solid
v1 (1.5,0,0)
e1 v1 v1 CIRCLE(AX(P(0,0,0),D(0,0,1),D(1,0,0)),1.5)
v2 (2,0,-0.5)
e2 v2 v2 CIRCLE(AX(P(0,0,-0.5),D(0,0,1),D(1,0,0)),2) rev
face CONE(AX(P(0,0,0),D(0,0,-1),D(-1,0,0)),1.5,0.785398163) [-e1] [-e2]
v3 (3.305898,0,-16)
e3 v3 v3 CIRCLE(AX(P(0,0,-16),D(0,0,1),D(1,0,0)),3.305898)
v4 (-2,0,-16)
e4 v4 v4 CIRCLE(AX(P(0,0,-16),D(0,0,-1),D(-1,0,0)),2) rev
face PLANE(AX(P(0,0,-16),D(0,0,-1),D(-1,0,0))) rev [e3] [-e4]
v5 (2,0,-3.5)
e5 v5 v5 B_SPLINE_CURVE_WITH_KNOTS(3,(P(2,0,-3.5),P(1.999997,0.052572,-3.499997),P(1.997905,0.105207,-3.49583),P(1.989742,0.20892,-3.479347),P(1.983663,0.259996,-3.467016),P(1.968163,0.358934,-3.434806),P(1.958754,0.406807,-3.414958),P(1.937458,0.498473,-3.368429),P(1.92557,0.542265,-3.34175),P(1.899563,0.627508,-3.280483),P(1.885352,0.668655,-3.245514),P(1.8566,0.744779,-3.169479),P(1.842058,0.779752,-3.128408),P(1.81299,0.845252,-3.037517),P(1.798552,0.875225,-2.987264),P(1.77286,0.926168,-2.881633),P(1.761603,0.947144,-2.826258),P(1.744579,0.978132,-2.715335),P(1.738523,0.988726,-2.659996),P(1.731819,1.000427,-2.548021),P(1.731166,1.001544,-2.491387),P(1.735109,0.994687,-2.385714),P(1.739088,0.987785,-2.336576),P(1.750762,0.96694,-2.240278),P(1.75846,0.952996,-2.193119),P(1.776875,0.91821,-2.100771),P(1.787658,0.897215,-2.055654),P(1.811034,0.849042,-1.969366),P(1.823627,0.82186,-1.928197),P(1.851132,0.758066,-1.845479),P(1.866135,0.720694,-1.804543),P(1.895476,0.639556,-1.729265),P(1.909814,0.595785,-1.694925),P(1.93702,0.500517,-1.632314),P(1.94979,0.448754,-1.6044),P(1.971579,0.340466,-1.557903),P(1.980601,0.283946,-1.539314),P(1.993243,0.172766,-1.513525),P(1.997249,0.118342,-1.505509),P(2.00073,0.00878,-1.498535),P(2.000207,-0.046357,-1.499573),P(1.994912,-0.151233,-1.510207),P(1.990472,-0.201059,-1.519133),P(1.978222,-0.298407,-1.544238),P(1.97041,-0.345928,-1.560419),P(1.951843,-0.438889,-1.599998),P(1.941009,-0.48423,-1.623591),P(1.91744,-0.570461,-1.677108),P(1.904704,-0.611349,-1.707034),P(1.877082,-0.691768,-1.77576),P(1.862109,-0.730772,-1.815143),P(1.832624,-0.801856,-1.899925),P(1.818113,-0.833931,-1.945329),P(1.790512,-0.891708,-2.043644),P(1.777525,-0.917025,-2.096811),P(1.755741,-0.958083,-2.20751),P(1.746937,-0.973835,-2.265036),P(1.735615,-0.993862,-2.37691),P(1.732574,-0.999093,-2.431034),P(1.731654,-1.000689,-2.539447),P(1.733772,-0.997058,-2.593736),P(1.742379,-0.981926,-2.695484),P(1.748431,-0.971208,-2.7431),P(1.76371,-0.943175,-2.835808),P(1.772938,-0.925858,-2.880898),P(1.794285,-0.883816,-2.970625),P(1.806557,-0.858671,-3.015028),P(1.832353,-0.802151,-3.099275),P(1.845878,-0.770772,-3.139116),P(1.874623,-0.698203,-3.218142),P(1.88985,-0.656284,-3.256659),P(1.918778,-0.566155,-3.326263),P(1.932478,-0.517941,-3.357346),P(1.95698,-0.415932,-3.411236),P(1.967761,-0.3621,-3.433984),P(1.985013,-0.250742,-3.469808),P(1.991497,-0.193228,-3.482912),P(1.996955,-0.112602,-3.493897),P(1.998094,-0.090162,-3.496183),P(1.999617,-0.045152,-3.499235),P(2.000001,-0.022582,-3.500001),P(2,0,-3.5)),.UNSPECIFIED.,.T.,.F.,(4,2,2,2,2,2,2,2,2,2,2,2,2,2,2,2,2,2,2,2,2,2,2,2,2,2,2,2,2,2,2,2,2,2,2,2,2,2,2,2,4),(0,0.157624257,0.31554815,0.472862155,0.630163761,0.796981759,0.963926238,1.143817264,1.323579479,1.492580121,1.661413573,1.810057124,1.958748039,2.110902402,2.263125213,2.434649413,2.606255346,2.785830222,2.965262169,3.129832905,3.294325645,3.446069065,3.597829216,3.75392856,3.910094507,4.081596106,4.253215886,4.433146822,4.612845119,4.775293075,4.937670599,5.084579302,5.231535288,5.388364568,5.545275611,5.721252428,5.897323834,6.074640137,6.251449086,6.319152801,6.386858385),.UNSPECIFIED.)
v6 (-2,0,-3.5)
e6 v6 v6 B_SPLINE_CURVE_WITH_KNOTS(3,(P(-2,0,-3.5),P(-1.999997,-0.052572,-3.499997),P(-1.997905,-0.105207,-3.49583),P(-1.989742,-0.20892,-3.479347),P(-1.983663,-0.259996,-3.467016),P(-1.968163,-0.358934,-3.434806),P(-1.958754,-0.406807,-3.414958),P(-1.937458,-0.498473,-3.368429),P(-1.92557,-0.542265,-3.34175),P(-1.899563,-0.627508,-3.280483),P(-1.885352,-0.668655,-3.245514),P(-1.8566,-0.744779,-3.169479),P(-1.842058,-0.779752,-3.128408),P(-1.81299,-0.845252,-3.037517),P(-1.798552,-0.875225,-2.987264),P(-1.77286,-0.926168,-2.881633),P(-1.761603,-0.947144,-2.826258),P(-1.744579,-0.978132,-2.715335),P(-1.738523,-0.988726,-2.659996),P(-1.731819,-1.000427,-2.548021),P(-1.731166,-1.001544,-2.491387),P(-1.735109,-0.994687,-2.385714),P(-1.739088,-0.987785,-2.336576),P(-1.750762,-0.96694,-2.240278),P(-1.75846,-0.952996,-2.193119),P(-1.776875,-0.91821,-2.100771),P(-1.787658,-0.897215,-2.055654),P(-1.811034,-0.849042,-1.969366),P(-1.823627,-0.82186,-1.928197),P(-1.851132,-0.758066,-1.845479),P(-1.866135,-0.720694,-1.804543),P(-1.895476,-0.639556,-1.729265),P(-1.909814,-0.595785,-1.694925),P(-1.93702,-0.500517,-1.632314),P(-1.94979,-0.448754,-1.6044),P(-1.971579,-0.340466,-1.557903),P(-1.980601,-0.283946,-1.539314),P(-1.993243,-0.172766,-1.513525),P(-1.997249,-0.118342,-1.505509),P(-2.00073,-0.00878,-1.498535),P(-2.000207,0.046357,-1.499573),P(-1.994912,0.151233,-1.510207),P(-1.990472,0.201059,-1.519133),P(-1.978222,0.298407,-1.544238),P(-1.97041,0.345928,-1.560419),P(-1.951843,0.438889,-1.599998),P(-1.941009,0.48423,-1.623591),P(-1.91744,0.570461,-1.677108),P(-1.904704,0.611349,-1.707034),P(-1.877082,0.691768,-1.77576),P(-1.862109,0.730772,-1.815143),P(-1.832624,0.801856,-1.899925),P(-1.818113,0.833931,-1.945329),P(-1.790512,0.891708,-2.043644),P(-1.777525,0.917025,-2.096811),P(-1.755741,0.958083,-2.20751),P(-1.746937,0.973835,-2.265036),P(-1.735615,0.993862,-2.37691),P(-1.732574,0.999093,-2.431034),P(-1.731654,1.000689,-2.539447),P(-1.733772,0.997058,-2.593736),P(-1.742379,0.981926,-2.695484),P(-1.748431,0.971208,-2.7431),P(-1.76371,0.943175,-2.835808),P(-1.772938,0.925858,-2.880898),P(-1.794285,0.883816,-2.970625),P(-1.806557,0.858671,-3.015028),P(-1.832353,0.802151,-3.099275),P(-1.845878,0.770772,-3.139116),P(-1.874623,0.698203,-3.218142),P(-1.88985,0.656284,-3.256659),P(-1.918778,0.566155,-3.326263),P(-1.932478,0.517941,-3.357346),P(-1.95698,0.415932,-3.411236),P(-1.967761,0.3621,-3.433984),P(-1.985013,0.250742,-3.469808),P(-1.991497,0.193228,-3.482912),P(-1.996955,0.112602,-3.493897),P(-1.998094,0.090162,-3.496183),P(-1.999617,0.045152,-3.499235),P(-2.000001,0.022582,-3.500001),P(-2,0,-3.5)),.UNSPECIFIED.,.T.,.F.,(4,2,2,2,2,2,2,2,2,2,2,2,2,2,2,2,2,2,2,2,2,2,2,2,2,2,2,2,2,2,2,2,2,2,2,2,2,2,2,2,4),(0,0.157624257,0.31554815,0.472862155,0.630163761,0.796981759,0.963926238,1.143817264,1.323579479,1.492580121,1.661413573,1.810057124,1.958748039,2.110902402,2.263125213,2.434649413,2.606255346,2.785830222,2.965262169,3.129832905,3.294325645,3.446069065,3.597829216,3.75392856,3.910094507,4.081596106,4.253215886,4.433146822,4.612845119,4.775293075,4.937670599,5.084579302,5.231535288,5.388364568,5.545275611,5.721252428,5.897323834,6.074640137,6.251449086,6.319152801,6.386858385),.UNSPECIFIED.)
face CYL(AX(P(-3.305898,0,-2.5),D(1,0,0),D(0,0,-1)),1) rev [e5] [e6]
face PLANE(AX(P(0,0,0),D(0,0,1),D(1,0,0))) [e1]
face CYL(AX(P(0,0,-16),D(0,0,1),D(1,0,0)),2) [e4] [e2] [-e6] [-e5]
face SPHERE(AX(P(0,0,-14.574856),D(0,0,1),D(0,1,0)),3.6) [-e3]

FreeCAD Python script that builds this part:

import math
import FreeCAD as App
import Part
import Sketcher

V = App.Vector


def edges_at(feature, points):
    """Names of the edges that pass closest to the given points."""
    edges = feature.Shape.Edges
    near = lambda p: min(range(len(edges)), key=lambda i: edges[i].distToShape(Part.Vertex(*p))[0])
    return sorted({f"Edge{near(p) + 1}" for p in points})

doc = App.newDocument("Part")
params = doc.addObject("Spreadsheet::Sheet", "Params")
for row, (alias, value) in enumerate([
    ("sketch1_diameter", "4 mm"),
    ("pad1_length", "16 mm"),
    ("chamfer_size", "0.5 mm"),
    ("sketch2_radius", "3.6 mm"),
    ("revolution_angle", "360 deg"),
    ("sketch3_diameter", "2 mm"),
], start=1):
    params.set(f"A{row}", alias)
    params.set(f"B{row}", "=" + value)
    params.setAlias(f"B{row}", alias)

body = doc.addObject("PartDesign::Body", "Body")

# Sketch on XY plane
sketch1 = body.newObject("Sketcher::SketchObject", "Sketch")
sketch1.AttachmentSupport = (doc.getObject("XY_Plane"), [""])
sketch1.MapMode = "FlatFace"
sketch1.addGeometry(Part.Circle(V(0, 0, 0), V(0, 0, 1), 2), False)
sketch1.addConstraint([
    Sketcher.Constraint("Coincident", 0, 3, -1, 1),
    Sketcher.Constraint("Diameter", 0, 4.0),
])
sketch1.setExpression("Constraints[1]", "Params.sketch1_diameter")
pad1 = body.newObject("PartDesign::Pad", "Pad")
pad1.Profile = sketch1
pad1.setExpression("Length", "Params.pad1_length")
pad1.Reversed = True
doc.recompute()

chamfer = body.newObject("PartDesign::Chamfer", "Chamfer")
chamfer.Base = (pad1, edges_at(pad1, [(-2, 0, 0)]))
chamfer.setExpression("Size", "Params.chamfer_size")

# Sketch on YZ plane
sketch2 = body.newObject("Sketcher::SketchObject", "Sketch001")
sketch2.AttachmentSupport = (doc.getObject("YZ_Plane"), [""])
sketch2.MapMode = "FlatFace"
sketch2.addGeometry([
    Part.LineSegment(V(3.305898, -16, 0), V(0, -16, 0)),
    Part.LineSegment(V(0, -16, 0), V(0, -18.174856, 0)),
    Part.ArcOfCircle(Part.Circle(V(0, -14.574856, 0), V(0, 0, 1), 3.6), math.radians(-90), math.radians(-23.320459)),
], False)
sketch2.addConstraint([
    Sketcher.Constraint("Coincident", 0, 2, 1, 1),
    Sketcher.Constraint("Coincident", 1, 2, 2, 1),
    Sketcher.Constraint("Coincident", 2, 2, 0, 1),
    Sketcher.Constraint("Horizontal", 0),
    Sketcher.Constraint("Vertical", 1),
    Sketcher.Constraint("PointOnObject", 2, 3, -2),
    Sketcher.Constraint("PointOnObject", 0, 2, -2),
    Sketcher.Constraint("Radius", 2, 3.6),
    Sketcher.Constraint("DistanceY", 0, 2, -1, 1, 16.0),
    Sketcher.Constraint("DistanceX", 0, 2, 0, 1, 3.305898),
])
sketch2.setExpression("Constraints[7]", "Params.sketch2_radius")
revolution = body.newObject("PartDesign::Revolution", "Revolution")
revolution.Profile = sketch2
revolution.ReferenceAxis = (sketch2, ["V_Axis"])
revolution.setExpression("Angle", "Params.revolution_angle")

# Sketch on YZ plane
sketch3 = body.newObject("Sketcher::SketchObject", "Sketch002")
sketch3.AttachmentSupport = (doc.getObject("YZ_Plane"), [""])
sketch3.MapMode = "FlatFace"
sketch3.addGeometry(Part.Circle(V(0, -2.5, 0), V(0, 0, 1), 1), False)
sketch3.addConstraint([
    Sketcher.Constraint("PointOnObject", 0, 3, -2),
    Sketcher.Constraint("Diameter", 0, 2.0),
    Sketcher.Constraint("DistanceY", 0, 3, -1, 1, 2.5),
])
sketch3.setExpression("Constraints[1]", "Params.sketch3_diameter")
pocket1 = body.newObject("PartDesign::Pocket", "Pocket")
pocket1.Profile = sketch3
pocket1.Type = "ThroughAll"
pocket1.Midplane = True

doc.recompute()
